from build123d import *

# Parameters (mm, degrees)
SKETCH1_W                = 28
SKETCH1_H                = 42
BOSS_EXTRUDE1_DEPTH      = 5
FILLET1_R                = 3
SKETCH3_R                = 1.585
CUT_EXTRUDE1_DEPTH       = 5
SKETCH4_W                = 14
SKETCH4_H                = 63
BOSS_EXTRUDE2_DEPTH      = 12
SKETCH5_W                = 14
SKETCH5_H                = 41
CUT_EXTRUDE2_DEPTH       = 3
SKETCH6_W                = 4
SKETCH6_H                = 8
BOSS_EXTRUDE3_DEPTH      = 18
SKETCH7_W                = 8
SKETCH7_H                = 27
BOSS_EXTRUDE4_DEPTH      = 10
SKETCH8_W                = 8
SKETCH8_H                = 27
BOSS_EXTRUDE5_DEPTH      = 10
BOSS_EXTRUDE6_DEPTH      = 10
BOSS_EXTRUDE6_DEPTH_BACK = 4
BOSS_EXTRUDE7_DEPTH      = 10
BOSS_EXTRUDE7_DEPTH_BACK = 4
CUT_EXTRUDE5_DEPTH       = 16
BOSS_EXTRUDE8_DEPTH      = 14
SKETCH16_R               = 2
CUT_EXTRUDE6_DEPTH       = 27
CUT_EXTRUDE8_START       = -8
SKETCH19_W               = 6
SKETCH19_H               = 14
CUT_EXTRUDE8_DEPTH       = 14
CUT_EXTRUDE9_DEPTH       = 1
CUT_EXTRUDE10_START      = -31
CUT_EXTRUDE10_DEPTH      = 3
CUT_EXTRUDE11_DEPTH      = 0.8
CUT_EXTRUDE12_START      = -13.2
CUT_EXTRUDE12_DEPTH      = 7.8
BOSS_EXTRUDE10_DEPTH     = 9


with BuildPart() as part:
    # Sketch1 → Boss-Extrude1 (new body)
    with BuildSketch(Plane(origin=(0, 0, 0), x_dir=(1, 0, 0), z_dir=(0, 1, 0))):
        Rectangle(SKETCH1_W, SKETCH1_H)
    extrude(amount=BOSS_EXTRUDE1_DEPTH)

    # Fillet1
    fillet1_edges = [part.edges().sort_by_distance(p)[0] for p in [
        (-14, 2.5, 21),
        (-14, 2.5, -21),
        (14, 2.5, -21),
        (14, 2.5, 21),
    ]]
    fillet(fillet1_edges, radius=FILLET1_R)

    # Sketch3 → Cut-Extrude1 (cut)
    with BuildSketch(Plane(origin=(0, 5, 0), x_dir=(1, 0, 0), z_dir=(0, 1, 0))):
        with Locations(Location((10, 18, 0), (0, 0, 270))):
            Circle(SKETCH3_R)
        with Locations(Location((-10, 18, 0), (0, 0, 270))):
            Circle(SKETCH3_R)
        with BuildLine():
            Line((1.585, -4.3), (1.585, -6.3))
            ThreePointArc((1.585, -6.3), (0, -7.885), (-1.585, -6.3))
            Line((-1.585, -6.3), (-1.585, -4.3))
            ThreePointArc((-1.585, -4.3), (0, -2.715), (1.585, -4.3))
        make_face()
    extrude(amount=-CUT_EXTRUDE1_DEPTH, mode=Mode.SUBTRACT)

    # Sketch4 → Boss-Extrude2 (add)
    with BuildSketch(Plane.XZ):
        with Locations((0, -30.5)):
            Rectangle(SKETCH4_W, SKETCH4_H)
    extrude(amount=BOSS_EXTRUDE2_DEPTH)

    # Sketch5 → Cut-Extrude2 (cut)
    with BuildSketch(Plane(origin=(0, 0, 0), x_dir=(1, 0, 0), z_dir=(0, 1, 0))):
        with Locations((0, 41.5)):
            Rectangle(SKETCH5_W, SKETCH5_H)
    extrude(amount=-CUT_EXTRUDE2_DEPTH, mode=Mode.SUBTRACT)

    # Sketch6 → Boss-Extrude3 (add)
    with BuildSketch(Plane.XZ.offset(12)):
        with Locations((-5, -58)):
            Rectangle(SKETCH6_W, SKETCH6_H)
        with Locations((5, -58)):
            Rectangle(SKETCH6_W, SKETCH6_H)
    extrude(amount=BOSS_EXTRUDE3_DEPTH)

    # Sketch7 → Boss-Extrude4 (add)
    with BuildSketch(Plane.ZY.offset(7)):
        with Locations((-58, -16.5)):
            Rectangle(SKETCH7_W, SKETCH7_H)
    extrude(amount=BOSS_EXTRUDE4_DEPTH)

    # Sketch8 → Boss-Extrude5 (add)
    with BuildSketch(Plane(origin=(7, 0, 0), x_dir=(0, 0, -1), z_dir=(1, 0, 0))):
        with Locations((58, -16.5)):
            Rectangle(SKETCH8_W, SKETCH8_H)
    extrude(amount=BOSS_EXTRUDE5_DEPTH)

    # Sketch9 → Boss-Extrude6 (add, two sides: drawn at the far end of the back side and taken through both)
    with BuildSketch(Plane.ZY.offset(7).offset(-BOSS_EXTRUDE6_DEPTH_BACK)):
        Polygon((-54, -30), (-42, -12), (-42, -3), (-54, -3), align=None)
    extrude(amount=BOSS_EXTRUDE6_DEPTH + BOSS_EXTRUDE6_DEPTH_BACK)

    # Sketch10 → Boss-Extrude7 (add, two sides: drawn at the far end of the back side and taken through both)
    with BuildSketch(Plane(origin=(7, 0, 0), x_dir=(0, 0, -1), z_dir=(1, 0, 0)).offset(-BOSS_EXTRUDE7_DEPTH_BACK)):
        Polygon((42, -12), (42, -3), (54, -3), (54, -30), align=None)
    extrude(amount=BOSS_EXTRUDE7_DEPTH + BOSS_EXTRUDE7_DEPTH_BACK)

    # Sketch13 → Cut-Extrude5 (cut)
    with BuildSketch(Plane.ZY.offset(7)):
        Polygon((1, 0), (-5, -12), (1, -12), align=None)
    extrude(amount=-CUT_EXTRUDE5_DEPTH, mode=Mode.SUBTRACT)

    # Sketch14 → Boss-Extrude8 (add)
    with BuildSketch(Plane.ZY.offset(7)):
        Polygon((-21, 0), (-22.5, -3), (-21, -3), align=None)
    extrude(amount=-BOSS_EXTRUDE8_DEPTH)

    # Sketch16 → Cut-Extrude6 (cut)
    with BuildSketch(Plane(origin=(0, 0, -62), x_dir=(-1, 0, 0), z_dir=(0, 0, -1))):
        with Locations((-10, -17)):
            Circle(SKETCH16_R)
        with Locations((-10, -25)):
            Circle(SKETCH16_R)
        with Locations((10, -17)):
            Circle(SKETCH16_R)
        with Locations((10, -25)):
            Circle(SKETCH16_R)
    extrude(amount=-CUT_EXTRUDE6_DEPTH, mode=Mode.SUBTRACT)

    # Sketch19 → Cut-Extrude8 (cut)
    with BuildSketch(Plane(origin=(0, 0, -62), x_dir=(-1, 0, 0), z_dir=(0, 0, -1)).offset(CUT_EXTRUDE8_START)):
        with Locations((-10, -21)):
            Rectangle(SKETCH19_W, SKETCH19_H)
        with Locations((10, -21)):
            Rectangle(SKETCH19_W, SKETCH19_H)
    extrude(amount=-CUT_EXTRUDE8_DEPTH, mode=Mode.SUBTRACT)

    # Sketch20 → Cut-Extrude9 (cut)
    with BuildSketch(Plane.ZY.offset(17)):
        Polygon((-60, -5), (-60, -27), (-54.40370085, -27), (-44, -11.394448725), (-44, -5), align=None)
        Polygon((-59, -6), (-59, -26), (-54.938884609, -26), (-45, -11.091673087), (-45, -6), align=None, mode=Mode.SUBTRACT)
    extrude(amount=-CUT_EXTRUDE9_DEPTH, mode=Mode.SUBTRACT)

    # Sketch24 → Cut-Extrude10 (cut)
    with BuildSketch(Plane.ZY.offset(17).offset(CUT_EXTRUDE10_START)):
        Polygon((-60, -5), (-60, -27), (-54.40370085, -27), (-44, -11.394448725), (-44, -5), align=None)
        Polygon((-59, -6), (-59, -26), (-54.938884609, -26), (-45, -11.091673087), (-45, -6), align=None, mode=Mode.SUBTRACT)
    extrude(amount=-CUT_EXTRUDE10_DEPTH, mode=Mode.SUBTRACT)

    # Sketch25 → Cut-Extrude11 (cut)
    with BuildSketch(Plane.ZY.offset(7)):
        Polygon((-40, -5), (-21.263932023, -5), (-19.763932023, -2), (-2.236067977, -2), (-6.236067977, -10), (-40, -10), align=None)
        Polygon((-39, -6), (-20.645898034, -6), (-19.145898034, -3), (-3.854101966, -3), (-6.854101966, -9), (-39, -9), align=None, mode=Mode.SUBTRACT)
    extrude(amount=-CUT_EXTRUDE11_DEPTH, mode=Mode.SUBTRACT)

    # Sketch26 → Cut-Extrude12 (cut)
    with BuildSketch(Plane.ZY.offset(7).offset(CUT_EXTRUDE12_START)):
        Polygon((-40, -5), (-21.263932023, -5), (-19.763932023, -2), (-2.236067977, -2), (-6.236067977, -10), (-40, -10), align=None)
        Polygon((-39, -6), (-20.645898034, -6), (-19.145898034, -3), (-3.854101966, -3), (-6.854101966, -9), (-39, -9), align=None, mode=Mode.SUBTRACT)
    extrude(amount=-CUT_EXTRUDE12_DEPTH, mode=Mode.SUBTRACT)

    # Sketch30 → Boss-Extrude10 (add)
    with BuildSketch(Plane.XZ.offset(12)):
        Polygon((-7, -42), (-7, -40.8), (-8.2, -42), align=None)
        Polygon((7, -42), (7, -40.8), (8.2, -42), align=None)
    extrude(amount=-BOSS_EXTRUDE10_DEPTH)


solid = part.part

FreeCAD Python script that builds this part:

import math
import FreeCAD as App
import Part
import Sketcher
from FreeCAD import Vector


def edges_at(feature, points):
    """Names of the edges that pass closest to the given points."""
    edges = feature.Shape.Edges
    near = lambda p: min(range(len(edges)), key=lambda i: edges[i].distToShape(Part.Vertex(*p))[0])
    return sorted({f"Edge{near(p) + 1}" for p in points})


def add_polygon(sketch, points):
    """Adds a closed chain of lines whose ends are joined by coincident constraints."""
    first, n = sketch.GeometryCount, len(points)
    for a, b in zip(points, points[1:] + points[:1]):
        sketch.addGeometry(Part.LineSegment(App.Vector(*a, 0), App.Vector(*b, 0)), False)
    for i in range(n):
        sketch.addConstraint(Sketcher.Constraint("Coincident", first + i, 2, first + (i + 1) % n, 1))

doc = App.newDocument("Part")
params = doc.addObject("Spreadsheet::Sheet", "Params")
for row, (alias, value) in enumerate([
    ("sketch1_width", "28 mm"),
    ("sketch1_height", "42 mm"),
    ("pad1_length", "5 mm"),
    ("fillet_radius", "3 mm"),
    ("sketch2_diameter", "3.17 mm"),
    ("sketch2_height", "2 mm"),
    ("pocket1_length", "5 mm"),
    ("sketch3_width", "14 mm"),
    ("sketch3_height", "63 mm"),
    ("pad2_length", "12 mm"),
    ("sketch4_width", "14 mm"),
    ("sketch4_height", "41 mm"),
    ("pocket2_length", "3 mm"),
    ("sketch5_width", "4 mm"),
    ("sketch5_height", "8 mm"),
    ("pad3_length", "18 mm"),
    ("sketch6_width", "27 mm"),
    ("sketch6_height", "8 mm"),
    ("pad4_length", "10 mm"),
    ("sketch7_width", "27 mm"),
    ("sketch7_height", "8 mm"),
    ("pad5_length", "10 mm"),
    ("sketch8_width", "9 mm"),
    ("sketch8_width2", "27 mm"),
    ("sketch8_height", "12 mm"),
    ("pad6_length", "10 mm"),
    ("pad6_length2", "4 mm"),
    ("sketch9_width", "9 mm"),
    ("sketch9_width2", "27 mm"),
    ("sketch9_height", "12 mm"),
    ("pad7_length", "10 mm"),
    ("pad7_length2", "4 mm"),
    ("sketch10_width", "12 mm"),
    ("sketch10_height", "6 mm"),
    ("pocket3_length", "16 mm"),
    ("sketch11_width", "3 mm"),
    ("sketch11_height", "1.5 mm"),
    ("pad8_length", "14 mm"),
    ("sketch12_diameter", "4 mm"),
    ("pocket4_length", "27 mm"),
    ("sketch13_width", "6 mm"),
    ("sketch13_height", "14 mm"),
    ("pocket5_length", "14 mm"),
    ("sketch14_width", "22 mm"),
    ("sketch14_width2", "20 mm"),
    ("sketch14_height", "16 mm"),
    ("sketch14_height2", "14 mm"),
    ("pocket6_length", "1 mm"),
    ("sketch15_width", "22 mm"),
    ("sketch15_width2", "20 mm"),
    ("sketch15_height", "16 mm"),
    ("sketch15_height2", "14 mm"),
    ("pocket7_length", "3 mm"),
    ("sketch16_width", "5 mm"),
    ("sketch16_width2", "3 mm"),
    ("pocket8_length", "0.8 mm"),
    ("sketch17_width", "5 mm"),
    ("sketch17_width2", "3 mm"),
    ("pocket9_length", "7.8 mm"),
    ("sketch18_width", "1.2 mm"),
    ("pad9_length", "9 mm"),
], start=1):
    params.set(f"A{row}", alias)
    params.set(f"B{row}", "=" + value)
    params.setAlias(f"B{row}", alias)

body = doc.addObject("PartDesign::Body", "Body")

# Sketch on XZ plane
sketch1 = body.newObject("Sketcher::SketchObject", "Sketch")
sketch1.AttachmentSupport = (doc.getObject("XZ_Plane"), [""])
sketch1.MapMode = "FlatFace"
add_polygon(sketch1, [(-14, -21), (-14, 21), (14, 21), (14, -21)])  # lines 0-3
sketch1.addConstraint([
    Sketcher.Constraint("Vertical", 0),
    Sketcher.Constraint("Horizontal", 1),
    Sketcher.Constraint("Vertical", 2),
    Sketcher.Constraint("Horizontal", 3),
    Sketcher.Constraint("Symmetric", 0, 2, 2, 2, -1, 1),
    Sketcher.Constraint("DistanceX", 1, 1, 1, 2, 28.0),
    Sketcher.Constraint("DistanceY", 0, 1, 0, 2, 42.0),
])
sketch1.setExpression("Constraints[9]", "Params.sketch1_width")
sketch1.setExpression("Constraints[10]", "Params.sketch1_height")
pad1 = body.newObject("PartDesign::Pad", "Pad")
pad1.Profile = sketch1
pad1.setExpression("Length", "Params.pad1_length")
pad1.Reversed = True
doc.recompute()

fillet = body.newObject("PartDesign::Fillet", "Fillet")
fillet.Base = (pad1, edges_at(pad1, [
    (-14, 2.5, 21),
    (-14, 2.5, -21),
    (14, 2.5, -21),
    (14, 2.5, 21),
]))
fillet.setExpression("Radius", "Params.fillet_radius")

# Sketch on XZ plane
sketch2 = body.newObject("Sketcher::SketchObject", "Sketch001")
sketch2.AttachmentSupport = (doc.getObject("XZ_Plane"), [""])
sketch2.MapMode = "FlatFace"
sketch2.AttachmentOffset = App.Placement(Vector(0, 0, -5), App.Rotation())
sketch2.addGeometry([
    Part.Circle(Vector(10, -18, 0), Vector(0, 0, 1), 1.6),  # 0
    Part.Circle(Vector(-10, -18, 0), Vector(0, 0, 1), 1.6),  # 1
    Part.LineSegment(Vector(1.6, 6.3, 0), Vector(1.6, 4.3, 0)),  # 2
    Part.ArcOfCircle(Part.Circle(Vector(0, 4.3, 0), Vector(0, 0, 1), 1.6), math.radians(180), math.radians(360)),  # 3
    Part.LineSegment(Vector(-1.6, 4.3, 0), Vector(-1.6, 6.3, 0)),  # 4
    Part.ArcOfCircle(Part.Circle(Vector(0, 6.3, 0), Vector(0, 0, 1), 1.6), math.radians(0), math.radians(180)),  # 5
], False)
sketch2.addConstraint([
    Sketcher.Constraint("Tangent", 2, 2, 3, 2),
    Sketcher.Constraint("Tangent", 3, 1, 4, 1),
    Sketcher.Constraint("Tangent", 4, 2, 5, 2),
    Sketcher.Constraint("Tangent", 5, 1, 2, 1),
    Sketcher.Constraint("Vertical", 2),
    Sketcher.Constraint("Vertical", 4),
    Sketcher.Constraint("Equal", 0, 1),
    Sketcher.Constraint("Equal", 1, 3),
    Sketcher.Constraint("Symmetric", 0, 3, 1, 3, -2),
    Sketcher.Constraint("PointOnObject", 3, 3, -2),
    Sketcher.Constraint("Diameter", 0, 3.17),
    Sketcher.Constraint("DistanceY", 2, 2, 2, 1, 2.0),
    Sketcher.Constraint("DistanceX", -1, 1, 0, 3, 10.0),
    Sketcher.Constraint("DistanceY", 0, 3, -1, 1, 18.0),
    Sketcher.Constraint("DistanceY", -1, 1, 3, 3, 4.3),
])
sketch2.setExpression("Constraints[10]", "Params.sketch2_diameter")
sketch2.setExpression("Constraints[11]", "Params.sketch2_height")
pocket1 = body.newObject("PartDesign::Pocket", "Pocket")
pocket1.Profile = sketch2
pocket1.setExpression("Length", "Params.pocket1_length")
pocket1.Reversed = True

# Sketch on XZ plane
sketch3 = body.newObject("Sketcher::SketchObject", "Sketch002")
sketch3.AttachmentSupport = (doc.getObject("XZ_Plane"), [""])
sketch3.MapMode = "FlatFace"
add_polygon(sketch3, [(-7, 1), (-7, -62), (7, -62), (7, 1)])  # lines 0-3
sketch3.addConstraint([
    Sketcher.Constraint("Vertical", 0),
    Sketcher.Constraint("Horizontal", 1),
    Sketcher.Constraint("Vertical", 2),
    Sketcher.Constraint("Horizontal", 3),
    Sketcher.Constraint("DistanceX", 1, 1, 1, 2, 14.0),
    Sketcher.Constraint("DistanceY", 0, 2, 0, 1, 63.0),
    Sketcher.Constraint("DistanceX", 0, 2, -1, 1, 7.0),
    Sketcher.Constraint("DistanceY", 0, 2, -1, 1, 62.0),
])
sketch3.setExpression("Constraints[8]", "Params.sketch3_width")
sketch3.setExpression("Constraints[9]", "Params.sketch3_height")
pad2 = body.newObject("PartDesign::Pad", "Pad001")
pad2.Profile = sketch3
pad2.setExpression("Length", "Params.pad2_length")

# Sketch on XZ plane
sketch4 = body.newObject("Sketcher::SketchObject", "Sketch003")
sketch4.AttachmentSupport = (doc.getObject("XZ_Plane"), [""])
sketch4.MapMode = "FlatFace"
add_polygon(sketch4, [(-7, -62), (-7, -21), (7, -21), (7, -62)])  # lines 0-3
sketch4.addConstraint([
    Sketcher.Constraint("Vertical", 0),
    Sketcher.Constraint("Horizontal", 1),
    Sketcher.Constraint("Vertical", 2),
    Sketcher.Constraint("Horizontal", 3),
    Sketcher.Constraint("DistanceX", 1, 1, 1, 2, 14.0),
    Sketcher.Constraint("DistanceY", 0, 1, 0, 2, 41.0),
    Sketcher.Constraint("DistanceX", 0, 2, -1, 1, 7.0),
    Sketcher.Constraint("DistanceY", 0, 2, -1, 1, 21.0),
])
sketch4.setExpression("Constraints[8]", "Params.sketch4_width")
sketch4.setExpression("Constraints[9]", "Params.sketch4_height")
pocket2 = body.newObject("PartDesign::Pocket", "Pocket001")
pocket2.Profile = sketch4
pocket2.setExpression("Length", "Params.pocket2_length")
pocket2.Reversed = True

# Sketch on XZ plane
sketch5 = body.newObject("Sketcher::SketchObject", "Sketch004")
sketch5.AttachmentSupport = (doc.getObject("XZ_Plane"), [""])
sketch5.MapMode = "FlatFace"
sketch5.AttachmentOffset = App.Placement(Vector(0, 0, 12), App.Rotation())
add_polygon(sketch5, [(-7, -54), (-7, -62), (-3, -62), (-3, -54)])  # lines 0-3
add_polygon(sketch5, [(3, -54), (3, -62), (7, -62), (7, -54)])  # lines 4-7
sketch5.addConstraint([
    Sketcher.Constraint("Vertical", 0),
    Sketcher.Constraint("Horizontal", 1),
    Sketcher.Constraint("Vertical", 2),
    Sketcher.Constraint("Horizontal", 3),
    Sketcher.Constraint("Vertical", 4),
    Sketcher.Constraint("Horizontal", 5),
    Sketcher.Constraint("Vertical", 6),
    Sketcher.Constraint("Horizontal", 7),
    Sketcher.Constraint("Symmetric", 1, 2, 4, 2, -2),
    Sketcher.Constraint("Symmetric", 3, 2, 6, 2, -2),
    Sketcher.Constraint("DistanceX", 1, 1, 1, 2, 4.0),
    Sketcher.Constraint("DistanceY", 0, 2, 0, 1, 8.0),
    Sketcher.Constraint("DistanceX", 0, 2, -1, 1, 7.0),
    Sketcher.Constraint("DistanceY", 0, 2, -1, 1, 62.0),
])
sketch5.setExpression("Constraints[18]", "Params.sketch5_width")
sketch5.setExpression("Constraints[19]", "Params.sketch5_height")
pad3 = body.newObject("PartDesign::Pad", "Pad002")
pad3.Profile = sketch5
pad3.setExpression("Length", "Params.pad3_length")

# Sketch on YZ plane
sketch6 = body.newObject("Sketcher::SketchObject", "Sketch005")
sketch6.AttachmentSupport = (doc.getObject("YZ_Plane"), [""])
sketch6.MapMode = "FlatFace"
sketch6.AttachmentOffset = App.Placement(Vector(0, 0, -7), App.Rotation())
add_polygon(sketch6, [(-3, -62), (-30, -62), (-30, -54), (-3, -54)])  # lines 0-3
sketch6.addConstraint([
    Sketcher.Constraint("Horizontal", 0),
    Sketcher.Constraint("Vertical", 1),
    Sketcher.Constraint("Horizontal", 2),
    Sketcher.Constraint("Vertical", 3),
    Sketcher.Constraint("DistanceX", 0, 2, 0, 1, 27.0),
    Sketcher.Constraint("DistanceY", 1, 1, 1, 2, 8.0),
    Sketcher.Constraint("DistanceX", 0, 2, -1, 1, 30.0),
    Sketcher.Constraint("DistanceY", 0, 2, -1, 1, 62.0),
])
sketch6.setExpression("Constraints[8]", "Params.sketch6_width")
sketch6.setExpression("Constraints[9]", "Params.sketch6_height")
pad4 = body.newObject("PartDesign::Pad", "Pad003")
pad4.Profile = sketch6
pad4.setExpression("Length", "Params.pad4_length")
pad4.Reversed = True

# Sketch on YZ plane
sketch7 = body.newObject("Sketcher::SketchObject", "Sketch006")
sketch7.AttachmentSupport = (doc.getObject("YZ_Plane"), [""])
sketch7.MapMode = "FlatFace"
sketch7.AttachmentOffset = App.Placement(Vector(0, 0, 7), App.Rotation())
add_polygon(sketch7, [(-3, -54), (-30, -54), (-30, -62), (-3, -62)])  # lines 0-3
sketch7.addConstraint([
    Sketcher.Constraint("Horizontal", 0),
    Sketcher.Constraint("Vertical", 1),
    Sketcher.Constraint("Horizontal", 2),
    Sketcher.Constraint("Vertical", 3),
    Sketcher.Constraint("DistanceX", 0, 2, 0, 1, 27.0),
    Sketcher.Constraint("DistanceY", 1, 2, 1, 1, 8.0),
    Sketcher.Constraint("DistanceX", 0, 2, -1, 1, 30.0),
    Sketcher.Constraint("DistanceY", 0, 2, -1, 1, 54.0),
])
sketch7.setExpression("Constraints[8]", "Params.sketch7_width")
sketch7.setExpression("Constraints[9]", "Params.sketch7_height")
pad5 = body.newObject("PartDesign::Pad", "Pad004")
pad5.Profile = sketch7
pad5.setExpression("Length", "Params.pad5_length")

# Sketch on YZ plane
sketch8 = body.newObject("Sketcher::SketchObject", "Sketch007")
sketch8.AttachmentSupport = (doc.getObject("YZ_Plane"), [""])
sketch8.MapMode = "FlatFace"
sketch8.AttachmentOffset = App.Placement(Vector(0, 0, -7), App.Rotation())
add_polygon(sketch8, [(-30, -54), (-12, -42), (-3, -42), (-3, -54)])  # lines 0-3
sketch8.addConstraint([
    Sketcher.Constraint("Horizontal", 1),
    Sketcher.Constraint("Vertical", 2),
    Sketcher.Constraint("Horizontal", 3),
    Sketcher.Constraint("DistanceX", 1, 1, 1, 2, 9.0),
    Sketcher.Constraint("DistanceX", 3, 2, 3, 1, 27.0),
    Sketcher.Constraint("DistanceY", 2, 2, 2, 1, 12.0),
    Sketcher.Constraint("DistanceX", 0, 2, -1, 1, 12.0),
    Sketcher.Constraint("DistanceY", 0, 2, -1, 1, 42.0),
])
sketch8.setExpression("Constraints[7]", "Params.sketch8_width")
sketch8.setExpression("Constraints[8]", "Params.sketch8_width2")
sketch8.setExpression("Constraints[9]", "Params.sketch8_height")
pad6 = body.newObject("PartDesign::Pad", "Pad005")
pad6.Profile = sketch8
pad6.Type = "TwoLengths"
pad6.setExpression("Length", "Params.pad6_length")
pad6.setExpression("Length2", "Params.pad6_length2")
pad6.Reversed = True

# Sketch on YZ plane
sketch9 = body.newObject("Sketcher::SketchObject", "Sketch008")
sketch9.AttachmentSupport = (doc.getObject("YZ_Plane"), [""])
sketch9.MapMode = "FlatFace"
sketch9.AttachmentOffset = App.Placement(Vector(0, 0, 7), App.Rotation())
add_polygon(sketch9, [(-3, -42), (-12, -42), (-30, -54), (-3, -54)])  # lines 0-3
sketch9.addConstraint([
    Sketcher.Constraint("Horizontal", 0),
    Sketcher.Constraint("Horizontal", 2),
    Sketcher.Constraint("Vertical", 3),
    Sketcher.Constraint("DistanceX", 0, 2, 0, 1, 9.0),
    Sketcher.Constraint("DistanceX", 2, 1, 2, 2, 27.0),
    Sketcher.Constraint("DistanceY", 3, 1, 3, 2, 12.0),
    Sketcher.Constraint("DistanceX", 0, 2, -1, 1, 12.0),
    Sketcher.Constraint("DistanceY", 0, 2, -1, 1, 42.0),
])
sketch9.setExpression("Constraints[7]", "Params.sketch9_width")
sketch9.setExpression("Constraints[8]", "Params.sketch9_width2")
sketch9.setExpression("Constraints[9]", "Params.sketch9_height")
pad7 = body.newObject("PartDesign::Pad", "Pad006")
pad7.Profile = sketch9
pad7.Type = "TwoLengths"
pad7.setExpression("Length", "Params.pad7_length")
pad7.setExpression("Length2", "Params.pad7_length2")

# Sketch on YZ plane
sketch10 = body.newObject("Sketcher::SketchObject", "Sketch009")
sketch10.AttachmentSupport = (doc.getObject("YZ_Plane"), [""])
sketch10.MapMode = "FlatFace"
sketch10.AttachmentOffset = App.Placement(Vector(0, 0, -7), App.Rotation())
add_polygon(sketch10, [(0, 1), (-12, -5), (-12, 1)])  # lines 0-2
sketch10.addConstraint([
    Sketcher.Constraint("Vertical", 1),
    Sketcher.Constraint("Horizontal", 2),
    Sketcher.Constraint("PointOnObject", 2, 2, -2),
    Sketcher.Constraint("DistanceX", 2, 1, 2, 2, 12.0),
    Sketcher.Constraint("DistanceY", 1, 1, 1, 2, 6.0),
    Sketcher.Constraint("DistanceY", 0, 2, -1, 1, 5.0),
])
sketch10.setExpression("Constraints[6]", "Params.sketch10_width")
sketch10.setExpression("Constraints[7]", "Params.sketch10_height")
pocket3 = body.newObject("PartDesign::Pocket", "Pocket002")
pocket3.Profile = sketch10
pocket3.setExpression("Length", "Params.pocket3_length")
pocket3.Reversed = True

# Sketch on YZ plane
sketch11 = body.newObject("Sketcher::SketchObject", "Sketch010")
sketch11.AttachmentSupport = (doc.getObject("YZ_Plane"), [""])
sketch11.MapMode = "FlatFace"
sketch11.AttachmentOffset = App.Placement(Vector(0, 0, -7), App.Rotation())
add_polygon(sketch11, [(0, -21), (-3, -22.5), (-3, -21)])  # lines 0-2
sketch11.addConstraint([
    Sketcher.Constraint("Vertical", 1),
    Sketcher.Constraint("Horizontal", 2),
    Sketcher.Constraint("PointOnObject", 2, 2, -2),
    Sketcher.Constraint("DistanceX", 2, 1, 2, 2, 3.0),
    Sketcher.Constraint("DistanceY", 1, 1, 1, 2, 1.5),
    Sketcher.Constraint("DistanceY", 1, 2, -1, 1, 21.0),
])
sketch11.setExpression("Constraints[6]", "Params.sketch11_width")
sketch11.setExpression("Constraints[7]", "Params.sketch11_height")
pad8 = body.newObject("PartDesign::Pad", "Pad007")
pad8.Profile = sketch11
pad8.setExpression("Length", "Params.pad8_length")

# Sketch on XY plane
sketch12 = body.newObject("Sketcher::SketchObject", "Sketch011")
sketch12.AttachmentSupport = (doc.getObject("XY_Plane"), [""])
sketch12.MapMode = "FlatFace"
sketch12.AttachmentOffset = App.Placement(Vector(0, 0, -62), App.Rotation())
sketch12.addGeometry([
    Part.Circle(Vector(10, -17, 0), Vector(0, 0, 1), 2),
    Part.Circle(Vector(10, -25, 0), Vector(0, 0, 1), 2),
    Part.Circle(Vector(-10, -17, 0), Vector(0, 0, 1), 2),
    Part.Circle(Vector(-10, -25, 0), Vector(0, 0, 1), 2),
], False)
sketch12.addConstraint([
    Sketcher.Constraint("Equal", 0, 1),
    Sketcher.Constraint("Equal", 1, 2),
    Sketcher.Constraint("Equal", 2, 3),
    Sketcher.Constraint("Symmetric", 0, 3, 2, 3, -2),
    Sketcher.Constraint("Symmetric", 1, 3, 3, 3, -2),
    Sketcher.Constraint("Vertical", 0, 3, 1, 3),
    Sketcher.Constraint("Diameter", 0, 4.0),
    Sketcher.Constraint("DistanceX", -1, 1, 0, 3, 10.0),
    Sketcher.Constraint("DistanceY", 0, 3, -1, 1, 17.0),
    Sketcher.Constraint("DistanceY", 1, 3, -1, 1, 25.0),
])
sketch12.setExpression("Constraints[6]", "Params.sketch12_diameter")
pocket4 = body.newObject("PartDesign::Pocket", "Pocket003")
pocket4.Profile = sketch12
pocket4.setExpression("Length", "Params.pocket4_length")
pocket4.Reversed = True

# Sketch on XY plane
sketch13 = body.newObject("Sketcher::SketchObject", "Sketch012")
sketch13.AttachmentSupport = (doc.getObject("XY_Plane"), [""])
sketch13.MapMode = "FlatFace"
sketch13.AttachmentOffset = App.Placement(Vector(0, 0, -54), App.Rotation())
add_polygon(sketch13, [(13, -14), (13, -28), (7, -28), (7, -14)])  # lines 0-3
add_polygon(sketch13, [(-7, -14), (-7, -28), (-13, -28), (-13, -14)])  # lines 4-7
sketch13.addConstraint([
    Sketcher.Constraint("Vertical", 0),
    Sketcher.Constraint("Horizontal", 1),
    Sketcher.Constraint("Vertical", 2),
    Sketcher.Constraint("Horizontal", 3),
    Sketcher.Constraint("Vertical", 4),
    Sketcher.Constraint("Horizontal", 5),
    Sketcher.Constraint("Vertical", 6),
    Sketcher.Constraint("Horizontal", 7),
    Sketcher.Constraint("Symmetric", 1, 2, 4, 2, -2),
    Sketcher.Constraint("Symmetric", 3, 2, 6, 2, -2),
    Sketcher.Constraint("DistanceX", 1, 2, 1, 1, 6.0),
    Sketcher.Constraint("DistanceY", 0, 2, 0, 1, 14.0),
    Sketcher.Constraint("DistanceX", -1, 1, 0, 2, 13.0),
    Sketcher.Constraint("DistanceY", 0, 2, -1, 1, 28.0),
])
sketch13.setExpression("Constraints[18]", "Params.sketch13_width")
sketch13.setExpression("Constraints[19]", "Params.sketch13_height")
pocket5 = body.newObject("PartDesign::Pocket", "Pocket004")
pocket5.Profile = sketch13
pocket5.setExpression("Length", "Params.pocket5_length")
pocket5.Reversed = True

# Sketch on YZ plane
sketch14 = body.newObject("Sketcher::SketchObject", "Sketch013")
sketch14.AttachmentSupport = (doc.getObject("YZ_Plane"), [""])
sketch14.MapMode = "FlatFace"
sketch14.AttachmentOffset = App.Placement(Vector(0, 0, -17), App.Rotation())
add_polygon(sketch14, [(-5, -60), (-27, -60), (-27, -54.4), (-11.4, -44), (-5, -44)])  # lines 0-4
add_polygon(sketch14, [(-26, -59), (-6, -59), (-6, -45), (-11.1, -45), (-26, -54.9)])  # lines 5-9
sketch14.addConstraint([
    Sketcher.Constraint("Horizontal", 0),
    Sketcher.Constraint("Vertical", 1),
    Sketcher.Constraint("Horizontal", 3),
    Sketcher.Constraint("Vertical", 4),
    Sketcher.Constraint("Horizontal", 5),
    Sketcher.Constraint("Vertical", 6),
    Sketcher.Constraint("Horizontal", 7),
    Sketcher.Constraint("Vertical", 9),
    Sketcher.Constraint("Parallel", 2, 8),
    Sketcher.Constraint("DistanceX", 0, 2, 0, 1, 22.0),
    Sketcher.Constraint("DistanceX", 5, 1, 5, 2, 20.0),
    Sketcher.Constraint("DistanceY", 4, 2, 4, 1, 16.0),
    Sketcher.Constraint("DistanceY", 6, 1, 6, 2, 14.0),
    Sketcher.Constraint("DistanceX", 0, 2, -1, 1, 27.0),
    Sketcher.Constraint("DistanceY", 0, 2, -1, 1, 60.0),
    Sketcher.Constraint("DistanceX", 5, 2, -1, 1, 6.0),
    Sketcher.Constraint("DistanceY", 5, 2, -1, 1, 59.0),
    Sketcher.Constraint("DistanceY", 1, 1, 1, 2, 5.596299),
    Sketcher.Constraint("DistanceX", 3, 1, 3, 2, 6.394449),
    Sketcher.Constraint("Distance", 8, 17.917579),
])
sketch14.setExpression("Constraints[19]", "Params.sketch14_width")
sketch14.setExpression("Constraints[20]", "Params.sketch14_width2")
sketch14.setExpression("Constraints[21]", "Params.sketch14_height")
sketch14.setExpression("Constraints[22]", "Params.sketch14_height2")
pocket6 = body.newObject("PartDesign::Pocket", "Pocket005")
pocket6.Profile = sketch14
pocket6.setExpression("Length", "Params.pocket6_length")
pocket6.Reversed = True

# Sketch on YZ plane
sketch15 = body.newObject("Sketcher::SketchObject", "Sketch014")
sketch15.AttachmentSupport = (doc.getObject("YZ_Plane"), [""])
sketch15.MapMode = "FlatFace"
sketch15.AttachmentOffset = App.Placement(Vector(0, 0, 14), App.Rotation())
add_polygon(sketch15, [(-5, -60), (-27, -60), (-27, -54.4), (-11.4, -44), (-5, -44)])  # lines 0-4
add_polygon(sketch15, [(-26, -59), (-6, -59), (-6, -45), (-11.1, -45), (-26, -54.9)])  # lines 5-9
sketch15.addConstraint([
    Sketcher.Constraint("Horizontal", 0),
    Sketcher.Constraint("Vertical", 1),
    Sketcher.Constraint("Horizontal", 3),
    Sketcher.Constraint("Vertical", 4),
    Sketcher.Constraint("Horizontal", 5),
    Sketcher.Constraint("Vertical", 6),
    Sketcher.Constraint("Horizontal", 7),
    Sketcher.Constraint("Vertical", 9),
    Sketcher.Constraint("Parallel", 2, 8),
    Sketcher.Constraint("DistanceX", 0, 2, 0, 1, 22.0),
    Sketcher.Constraint("DistanceX", 5, 1, 5, 2, 20.0),
    Sketcher.Constraint("DistanceY", 4, 2, 4, 1, 16.0),
    Sketcher.Constraint("DistanceY", 6, 1, 6, 2, 14.0),
    Sketcher.Constraint("DistanceX", 0, 2, -1, 1, 27.0),
    Sketcher.Constraint("DistanceY", 0, 2, -1, 1, 60.0),
    Sketcher.Constraint("DistanceX", 5, 2, -1, 1, 6.0),
    Sketcher.Constraint("DistanceY", 5, 2, -1, 1, 59.0),
    Sketcher.Constraint("DistanceY", 1, 1, 1, 2, 5.596299),
    Sketcher.Constraint("DistanceX", 3, 1, 3, 2, 6.394449),
    Sketcher.Constraint("Distance", 8, 17.917579),
])
sketch15.setExpression("Constraints[19]", "Params.sketch15_width")
sketch15.setExpression("Constraints[20]", "Params.sketch15_width2")
sketch15.setExpression("Constraints[21]", "Params.sketch15_height")
sketch15.setExpression("Constraints[22]", "Params.sketch15_height2")
pocket7 = body.newObject("PartDesign::Pocket", "Pocket006")
pocket7.Profile = sketch15
pocket7.setExpression("Length", "Params.pocket7_length")
pocket7.Reversed = True

# Sketch on YZ plane
sketch16 = body.newObject("Sketcher::SketchObject", "Sketch015")
sketch16.AttachmentSupport = (doc.getObject("YZ_Plane"), [""])
sketch16.MapMode = "FlatFace"
sketch16.AttachmentOffset = App.Placement(Vector(0, 0, -7), App.Rotation())
add_polygon(sketch16, [(-5, -21.3), (-5, -40), (-10, -40), (-10, -6.2), (-2, -2.2), (-2, -19.8)])  # lines 0-5
add_polygon(sketch16, [(-6, -39), (-6, -20.6), (-3, -19.1), (-3, -3.9), (-9, -6.9), (-9, -39)])  # lines 6-11
sketch16.addConstraint([
    Sketcher.Constraint("Vertical", 0),
    Sketcher.Constraint("Horizontal", 1),
    Sketcher.Constraint("Vertical", 2),
    Sketcher.Constraint("Vertical", 4),
    Sketcher.Constraint("Vertical", 6),
    Sketcher.Constraint("Vertical", 8),
    Sketcher.Constraint("Vertical", 10),
    Sketcher.Constraint("Horizontal", 11),
    Sketcher.Constraint("Parallel", 3, 5),
    Sketcher.Constraint("Parallel", 5, 7),
    Sketcher.Constraint("Parallel", 7, 9),
    Sketcher.Constraint("Equal", 5, 7),
    Sketcher.Constraint("DistanceX", 1, 2, 1, 1, 5.0),
    Sketcher.Constraint("DistanceX", 11, 1, 11, 2, 3.0),
    Sketcher.Constraint("DistanceX", 0, 2, -1, 1, 5.0),
    Sketcher.Constraint("DistanceY", 0, 2, -1, 1, 40.0),
    Sketcher.Constraint("DistanceX", 3, 2, -1, 1, 2.0),
    Sketcher.Constraint("DistanceX", 6, 2, -1, 1, 6.0),
    Sketcher.Constraint("DistanceY", 10, 2, -1, 1, 39.0),
    Sketcher.Constraint("DistanceY", 2, 2, 3, 2, 4.0),
    Sketcher.Constraint("DistanceY", 6, 1, 6, 2, 18.354102),
    Sketcher.Constraint("DistanceY", 10, 2, 10, 1, 32.145898),
    Sketcher.Constraint("DistanceY", 0, 2, 0, 1, 18.736068),
    Sketcher.Constraint("DistanceY", 2, 1, 2, 2, 33.763932),
])
sketch16.setExpression("Constraints[24]", "Params.sketch16_width")
sketch16.setExpression("Constraints[25]", "Params.sketch16_width2")
pocket8 = body.newObject("PartDesign::Pocket", "Pocket007")
pocket8.Profile = sketch16
pocket8.setExpression("Length", "Params.pocket8_length")
pocket8.Reversed = True

# Sketch on YZ plane
sketch17 = body.newObject("Sketcher::SketchObject", "Sketch016")
sketch17.AttachmentSupport = (doc.getObject("YZ_Plane"), [""])
sketch17.MapMode = "FlatFace"
sketch17.AttachmentOffset = App.Placement(Vector(0, 0, 6.2), App.Rotation())
add_polygon(sketch17, [(-5, -21.3), (-5, -40), (-10, -40), (-10, -6.2), (-2, -2.2), (-2, -19.8)])  # lines 0-5
add_polygon(sketch17, [(-6, -39), (-6, -20.6), (-3, -19.1), (-3, -3.9), (-9, -6.9), (-9, -39)])  # lines 6-11
sketch17.addConstraint([
    Sketcher.Constraint("Vertical", 0),
    Sketcher.Constraint("Horizontal", 1),
    Sketcher.Constraint("Vertical", 2),
    Sketcher.Constraint("Vertical", 4),
    Sketcher.Constraint("Vertical", 6),
    Sketcher.Constraint("Vertical", 8),
    Sketcher.Constraint("Vertical", 10),
    Sketcher.Constraint("Horizontal", 11),
    Sketcher.Constraint("Parallel", 3, 5),
    Sketcher.Constraint("Parallel", 5, 7),
    Sketcher.Constraint("Parallel", 7, 9),
    Sketcher.Constraint("Equal", 5, 7),
    Sketcher.Constraint("DistanceX", 1, 2, 1, 1, 5.0),
    Sketcher.Constraint("DistanceX", 11, 1, 11, 2, 3.0),
    Sketcher.Constraint("DistanceX", 0, 2, -1, 1, 5.0),
    Sketcher.Constraint("DistanceY", 0, 2, -1, 1, 40.0),
    Sketcher.Constraint("DistanceX", 3, 2, -1, 1, 2.0),
    Sketcher.Constraint("DistanceX", 6, 2, -1, 1, 6.0),
    Sketcher.Constraint("DistanceY", 10, 2, -1, 1, 39.0),
    Sketcher.Constraint("DistanceY", 2, 2, 3, 2, 4.0),
    Sketcher.Constraint("DistanceY", 6, 1, 6, 2, 18.354102),
    Sketcher.Constraint("DistanceY", 10, 2, 10, 1, 32.145898),
    Sketcher.Constraint("DistanceY", 0, 2, 0, 1, 18.736068),
    Sketcher.Constraint("DistanceY", 2, 1, 2, 2, 33.763932),
])
sketch17.setExpression("Constraints[24]", "Params.sketch17_width")
sketch17.setExpression("Constraints[25]", "Params.sketch17_width2")
pocket9 = body.newObject("PartDesign::Pocket", "Pocket008")
pocket9.Profile = sketch17
pocket9.setExpression("Length", "Params.pocket9_length")
pocket9.Reversed = True

# Sketch on XZ plane
sketch18 = body.newObject("Sketcher::SketchObject", "Sketch017")
sketch18.AttachmentSupport = (doc.getObject("XZ_Plane"), [""])
sketch18.MapMode = "FlatFace"
sketch18.AttachmentOffset = App.Placement(Vector(0, 0, 12), App.Rotation())
add_polygon(sketch18, [(-7, -42), (-7, -40.8), (-8.2, -42)])  # lines 0-2
add_polygon(sketch18, [(7, -40.8), (7, -42), (8.2, -42)])  # lines 3-5
sketch18.addConstraint([
    Sketcher.Constraint("Vertical", 0),
    Sketcher.Constraint("Horizontal", 2),
    Sketcher.Constraint("Vertical", 3),
    Sketcher.Constraint("Horizontal", 4),
    Sketcher.Constraint("Symmetric", 2, 2, 3, 2, -2),
    Sketcher.Constraint("Perpendicular", 1, 5),
    Sketcher.Constraint("Horizontal", 0, 2, 5, 2),
    Sketcher.Constraint("Equal", 2, 4),
    Sketcher.Constraint("DistanceX", 2, 1, 2, 2, 1.2),
    Sketcher.Constraint("DistanceX", 0, 2, -1, 1, 7.0),
    Sketcher.Constraint("DistanceY", 1, 2, -1, 1, 42.0),
])
sketch18.setExpression("Constraints[14]", "Params.sketch18_width")
pad9 = body.newObject("PartDesign::Pad", "Pad008")
pad9.Profile = sketch18
pad9.setExpression("Length", "Params.pad9_length")
pad9.Reversed = True

doc.recompute()
